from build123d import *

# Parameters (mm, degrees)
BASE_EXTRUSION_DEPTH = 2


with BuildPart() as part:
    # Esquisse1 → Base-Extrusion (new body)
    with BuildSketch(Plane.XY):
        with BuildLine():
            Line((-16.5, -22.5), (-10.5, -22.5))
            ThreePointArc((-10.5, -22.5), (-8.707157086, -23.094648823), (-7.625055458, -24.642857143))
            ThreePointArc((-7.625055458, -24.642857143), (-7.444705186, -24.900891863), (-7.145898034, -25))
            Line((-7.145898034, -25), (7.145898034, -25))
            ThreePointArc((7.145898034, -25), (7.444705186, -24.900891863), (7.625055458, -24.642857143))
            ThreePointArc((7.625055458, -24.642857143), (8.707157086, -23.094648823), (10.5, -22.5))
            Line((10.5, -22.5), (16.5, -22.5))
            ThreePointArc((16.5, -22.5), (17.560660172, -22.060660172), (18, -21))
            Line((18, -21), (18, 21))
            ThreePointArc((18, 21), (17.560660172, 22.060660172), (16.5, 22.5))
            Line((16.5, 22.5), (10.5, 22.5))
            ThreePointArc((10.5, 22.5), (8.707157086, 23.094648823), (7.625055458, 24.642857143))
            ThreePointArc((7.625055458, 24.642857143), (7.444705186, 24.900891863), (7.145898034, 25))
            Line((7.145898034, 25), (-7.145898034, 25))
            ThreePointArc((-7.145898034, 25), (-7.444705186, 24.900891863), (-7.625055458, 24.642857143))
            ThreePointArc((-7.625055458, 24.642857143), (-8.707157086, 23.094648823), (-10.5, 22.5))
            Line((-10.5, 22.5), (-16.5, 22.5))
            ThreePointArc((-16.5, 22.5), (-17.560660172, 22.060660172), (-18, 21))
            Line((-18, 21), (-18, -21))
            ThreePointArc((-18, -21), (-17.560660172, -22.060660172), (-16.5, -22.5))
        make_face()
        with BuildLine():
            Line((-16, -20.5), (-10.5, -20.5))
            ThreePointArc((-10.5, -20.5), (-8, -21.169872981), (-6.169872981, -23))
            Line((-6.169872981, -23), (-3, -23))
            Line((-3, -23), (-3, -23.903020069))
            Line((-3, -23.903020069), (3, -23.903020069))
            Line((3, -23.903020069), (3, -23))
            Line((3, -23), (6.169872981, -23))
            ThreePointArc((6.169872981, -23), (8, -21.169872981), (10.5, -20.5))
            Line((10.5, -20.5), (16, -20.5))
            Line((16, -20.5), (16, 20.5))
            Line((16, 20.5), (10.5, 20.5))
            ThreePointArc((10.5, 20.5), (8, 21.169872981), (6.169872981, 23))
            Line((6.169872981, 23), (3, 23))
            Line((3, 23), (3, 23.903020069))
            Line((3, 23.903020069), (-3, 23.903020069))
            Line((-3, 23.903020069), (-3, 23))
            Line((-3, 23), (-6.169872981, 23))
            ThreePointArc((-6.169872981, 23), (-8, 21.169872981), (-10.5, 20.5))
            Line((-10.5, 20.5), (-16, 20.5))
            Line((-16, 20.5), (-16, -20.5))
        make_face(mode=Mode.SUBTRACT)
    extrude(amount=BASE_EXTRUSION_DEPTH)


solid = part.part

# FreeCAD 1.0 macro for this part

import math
import FreeCAD as App
import Part
import Sketcher
from FreeCAD import Vector
Q = App.Units.Quantity

doc = App.newDocument("Part")
body = doc.addObject("PartDesign::Body", "Body")

sketch1 = body.newObject("Sketcher::SketchObject", "Sketch")
sketch1.AttachmentSupport = (doc.getObject("XY_Plane"), [""])
sketch1.MapMode = "FlatFace"
sketch1.addGeometry([
    Part.LineSegment(Vector(-16.5, -22.5, 0), Vector(-10.5, -22.5, 0)),
    Part.ArcOfCircle(Part.Circle(Vector(-10.5, -25.5, 0), Vector(0, 0, 1), 3), math.radians(16.60155), math.radians(90)),
    Part.ArcOfCircle(Part.Circle(Vector(-7.145898, -24.5, 0), Vector(0, 0, 1), 0.5), math.radians(-163.39845), math.radians(-90)),
    Part.LineSegment(Vector(-7.145898, -25, 0), Vector(7.145898, -25, 0)),
    Part.ArcOfCircle(Part.Circle(Vector(7.145898, -24.5, 0), Vector(0, 0, 1), 0.5), math.radians(-90), math.radians(-16.60155)),
    Part.ArcOfCircle(Part.Circle(Vector(10.5, -25.5, 0), Vector(0, 0, 1), 3), math.radians(90), math.radians(163.39845)),
    Part.LineSegment(Vector(10.5, -22.5, 0), Vector(16.5, -22.5, 0)),
    Part.ArcOfCircle(Part.Circle(Vector(16.5, -21, 0), Vector(0, 0, 1), 1.5), math.radians(-90), math.radians(0)),
    Part.LineSegment(Vector(18, -21, 0), Vector(18, 21, 0)),
    Part.ArcOfCircle(Part.Circle(Vector(16.5, 21, 0), Vector(0, 0, 1), 1.5), math.radians(0), math.radians(90)),
    Part.LineSegment(Vector(16.5, 22.5, 0), Vector(10.5, 22.5, 0)),
    Part.ArcOfCircle(Part.Circle(Vector(10.5, 25.5, 0), Vector(0, 0, 1), 3), math.radians(-163.39845), math.radians(-90)),
    Part.ArcOfCircle(Part.Circle(Vector(7.145898, 24.5, 0), Vector(0, 0, 1), 0.5), math.radians(16.60155), math.radians(90)),
    Part.LineSegment(Vector(7.145898, 25, 0), Vector(-7.145898, 25, 0)),
    Part.ArcOfCircle(Part.Circle(Vector(-7.145898, 24.5, 0), Vector(0, 0, 1), 0.5), math.radians(90), math.radians(163.39845)),
    Part.ArcOfCircle(Part.Circle(Vector(-10.5, 25.5, 0), Vector(0, 0, 1), 3), math.radians(-90), math.radians(-16.60155)),
    Part.LineSegment(Vector(-10.5, 22.5, 0), Vector(-16.5, 22.5, 0)),
    Part.ArcOfCircle(Part.Circle(Vector(-16.5, 21, 0), Vector(0, 0, 1), 1.5), math.radians(90), math.radians(180)),
    Part.LineSegment(Vector(-18, 21, 0), Vector(-18, -21, 0)),
    Part.ArcOfCircle(Part.Circle(Vector(-16.5, -21, 0), Vector(0, 0, 1), 1.5), math.radians(180), math.radians(270)),
    Part.LineSegment(Vector(-10.5, -20.5, 0), Vector(-16, -20.5, 0)),
    Part.LineSegment(Vector(-16, -20.5, 0), Vector(-16, 20.5, 0)),
    Part.LineSegment(Vector(-16, 20.5, 0), Vector(-10.5, 20.5, 0)),
    Part.ArcOfCircle(Part.Circle(Vector(-10.5, 25.5, 0), Vector(0, 0, 1), 5), math.radians(-90), math.radians(-30)),
    Part.LineSegment(Vector(-6.169873, 23, 0), Vector(-3, 23, 0)),
    Part.LineSegment(Vector(-3, 23, 0), Vector(-3, 23.90302, 0)),
    Part.LineSegment(Vector(-3, 23.90302, 0), Vector(3, 23.90302, 0)),
    Part.LineSegment(Vector(3, 23.90302, 0), Vector(3, 23, 0)),
    Part.LineSegment(Vector(3, 23, 0), Vector(6.169873, 23, 0)),
    Part.ArcOfCircle(Part.Circle(Vector(10.5, 25.5, 0), Vector(0, 0, 1), 5), math.radians(-150), math.radians(-90)),
    Part.LineSegment(Vector(10.5, 20.5, 0), Vector(16, 20.5, 0)),
    Part.LineSegment(Vector(16, 20.5, 0), Vector(16, -20.5, 0)),
    Part.LineSegment(Vector(16, -20.5, 0), Vector(10.5, -20.5, 0)),
    Part.ArcOfCircle(Part.Circle(Vector(10.5, -25.5, 0), Vector(0, 0, 1), 5), math.radians(90), math.radians(150)),
    Part.LineSegment(Vector(6.169873, -23, 0), Vector(3, -23, 0)),
    Part.LineSegment(Vector(3, -23, 0), Vector(3, -23.90302, 0)),
    Part.LineSegment(Vector(3, -23.90302, 0), Vector(-3, -23.90302, 0)),
    Part.LineSegment(Vector(-3, -23.90302, 0), Vector(-3, -23, 0)),
    Part.LineSegment(Vector(-3, -23, 0), Vector(-6.169873, -23, 0)),
    Part.ArcOfCircle(Part.Circle(Vector(-10.5, -25.5, 0), Vector(0, 0, 1), 5), math.radians(30), math.radians(90)),
], False)
sketch1.addConstraint([
    Sketcher.Constraint("Tangent", 0, 2, 1, 2),
    Sketcher.Constraint("Tangent", 1, 1, 2, 1),
    Sketcher.Constraint("Tangent", 2, 2, 3, 1),
    Sketcher.Constraint("Tangent", 3, 2, 4, 1),
    Sketcher.Constraint("Tangent", 4, 2, 5, 2),
    Sketcher.Constraint("Tangent", 5, 1, 6, 1),
    Sketcher.Constraint("Tangent", 6, 2, 7, 1),
    Sketcher.Constraint("Tangent", 7, 2, 8, 1),
    Sketcher.Constraint("Tangent", 8, 2, 9, 1),
    Sketcher.Constraint("Tangent", 9, 2, 10, 1),
    Sketcher.Constraint("Tangent", 10, 2, 11, 2),
    Sketcher.Constraint("Tangent", 11, 1, 12, 1),
    Sketcher.Constraint("Tangent", 12, 2, 13, 1),
    Sketcher.Constraint("Tangent", 13, 2, 14, 1),
    Sketcher.Constraint("Tangent", 14, 2, 15, 2),
    Sketcher.Constraint("Tangent", 15, 1, 16, 1),
    Sketcher.Constraint("Tangent", 16, 2, 17, 1),
    Sketcher.Constraint("Tangent", 17, 2, 18, 1),
    Sketcher.Constraint("Tangent", 18, 2, 19, 1),
    Sketcher.Constraint("Tangent", 19, 2, 0, 1),
    Sketcher.Constraint("Coincident", 20, 2, 21, 1),
    Sketcher.Constraint("Coincident", 21, 2, 22, 1),
    Sketcher.Constraint("Tangent", 22, 2, 23, 1),
    Sketcher.Constraint("Coincident", 23, 2, 24, 1),
    Sketcher.Constraint("Coincident", 24, 2, 25, 1),
    Sketcher.Constraint("Coincident", 25, 2, 26, 1),
    Sketcher.Constraint("Coincident", 26, 2, 27, 1),
    Sketcher.Constraint("Coincident", 27, 2, 28, 1),
    Sketcher.Constraint("Coincident", 28, 2, 29, 1),
    Sketcher.Constraint("Tangent", 29, 2, 30, 1),
    Sketcher.Constraint("Coincident", 30, 2, 31, 1),
    Sketcher.Constraint("Coincident", 31, 2, 32, 1),
    Sketcher.Constraint("Tangent", 32, 2, 33, 1),
    Sketcher.Constraint("Coincident", 33, 2, 34, 1),
    Sketcher.Constraint("Coincident", 34, 2, 35, 1),
    Sketcher.Constraint("Coincident", 35, 2, 36, 1),
    Sketcher.Constraint("Coincident", 36, 2, 37, 1),
    Sketcher.Constraint("Coincident", 37, 2, 38, 1),
    Sketcher.Constraint("Coincident", 38, 2, 39, 1),
    Sketcher.Constraint("Tangent", 39, 2, 20, 1),
    Sketcher.Constraint("Horizontal", 0),
    Sketcher.Constraint("Horizontal", 3),
    Sketcher.Constraint("Horizontal", 6),
    Sketcher.Constraint("Vertical", 8),
    Sketcher.Constraint("Horizontal", 10),
    Sketcher.Constraint("Horizontal", 13),
    Sketcher.Constraint("Horizontal", 16),
    Sketcher.Constraint("Vertical", 18),
    Sketcher.Constraint("Horizontal", 20),
    Sketcher.Constraint("Vertical", 21),
    Sketcher.Constraint("Horizontal", 22),
    Sketcher.Constraint("Horizontal", 24),
    Sketcher.Constraint("Vertical", 25),
    Sketcher.Constraint("Horizontal", 26),
    Sketcher.Constraint("Vertical", 27),
    Sketcher.Constraint("Horizontal", 28),
    Sketcher.Constraint("Horizontal", 30),
    Sketcher.Constraint("Vertical", 31),
    Sketcher.Constraint("Horizontal", 32),
    Sketcher.Constraint("Horizontal", 34),
    Sketcher.Constraint("Vertical", 35),
    Sketcher.Constraint("Horizontal", 36),
    Sketcher.Constraint("Vertical", 37),
    Sketcher.Constraint("Horizontal", 38),
    Sketcher.Constraint("Coincident", 23, 3, 15, 3),
    Sketcher.Constraint("Coincident", 29, 3, 11, 3),
    Sketcher.Constraint("Coincident", 33, 3, 5, 3),
    Sketcher.Constraint("Coincident", 39, 3, 1, 3),
    Sketcher.Constraint("Equal", 2, 4),
    Sketcher.Constraint("Equal", 1, 5),
    Sketcher.Constraint("Equal", 7, 9),
    Sketcher.Constraint("Equal", 5, 11),
    Sketcher.Constraint("Equal", 4, 12),
    Sketcher.Constraint("Equal", 12, 14),
    Sketcher.Constraint("Equal", 11, 15),
    Sketcher.Constraint("Equal", 9, 17),
    Sketcher.Constraint("Equal", 17, 19),
    Sketcher.Constraint("Equal", 23, 29),
    Sketcher.Constraint("Equal", 29, 33),
    Sketcher.Constraint("Equal", 33, 39),
    Sketcher.Constraint("Symmetric", 1, 3, 11, 3, -1, 1),
    Sketcher.Constraint("Symmetric", 4, 3, 14, 3, -1, 1),
    Sketcher.Constraint("Symmetric", 7, 3, 17, 3, -1, 1),
    Sketcher.Constraint("Symmetric", 24, 2, 34, 2, -1, 1),
    Sketcher.Constraint("Symmetric", 26, 2, 36, 2, -1, 1),
    Sketcher.Constraint("Symmetric", 1, 3, 5, 3, -2),
    Sketcher.Constraint("Symmetric", 24, 2, 27, 2, -2),
    Sketcher.Constraint("Horizontal", 34, 2, 37, 2),
    Sketcher.Constraint("Equal", 16, 26),
    Sketcher.Constraint("Equal", 22, 30),
    Sketcher.Constraint("Radius", 1, Q("3 mm")),
    Sketcher.Constraint("Radius", 23, Q("5 mm")),
    Sketcher.Constraint("Radius", 2, Q("0.5 mm")),
    Sketcher.Constraint("Radius", 7, Q("1.5 mm")),
    Sketcher.Constraint("DistanceX", 0, 1, 0, 2, Q("6 mm")),
    Sketcher.Constraint("DistanceY", 8, 1, 8, 2, Q("42 mm")),
    Sketcher.Constraint("DistanceX", 20, 2, 20, 1, Q("5.5 mm")),
    Sketcher.Constraint("DistanceY", 2, 2, -1, 1, Q("25 mm")),
    Sketcher.Constraint("DistanceX", -1, 1, 7, 2, Q("18 mm")),
    Sketcher.Constraint("DistanceY", -1, 1, 23, 2, Q("23 mm")),
    Sketcher.Constraint("DistanceY", 25, 1, 25, 2, Q("0.90302 mm")),
])
pad1 = body.newObject("PartDesign::Pad", "Pad")
pad1.Profile = sketch1
pad1.Length = 2

doc.recompute()
